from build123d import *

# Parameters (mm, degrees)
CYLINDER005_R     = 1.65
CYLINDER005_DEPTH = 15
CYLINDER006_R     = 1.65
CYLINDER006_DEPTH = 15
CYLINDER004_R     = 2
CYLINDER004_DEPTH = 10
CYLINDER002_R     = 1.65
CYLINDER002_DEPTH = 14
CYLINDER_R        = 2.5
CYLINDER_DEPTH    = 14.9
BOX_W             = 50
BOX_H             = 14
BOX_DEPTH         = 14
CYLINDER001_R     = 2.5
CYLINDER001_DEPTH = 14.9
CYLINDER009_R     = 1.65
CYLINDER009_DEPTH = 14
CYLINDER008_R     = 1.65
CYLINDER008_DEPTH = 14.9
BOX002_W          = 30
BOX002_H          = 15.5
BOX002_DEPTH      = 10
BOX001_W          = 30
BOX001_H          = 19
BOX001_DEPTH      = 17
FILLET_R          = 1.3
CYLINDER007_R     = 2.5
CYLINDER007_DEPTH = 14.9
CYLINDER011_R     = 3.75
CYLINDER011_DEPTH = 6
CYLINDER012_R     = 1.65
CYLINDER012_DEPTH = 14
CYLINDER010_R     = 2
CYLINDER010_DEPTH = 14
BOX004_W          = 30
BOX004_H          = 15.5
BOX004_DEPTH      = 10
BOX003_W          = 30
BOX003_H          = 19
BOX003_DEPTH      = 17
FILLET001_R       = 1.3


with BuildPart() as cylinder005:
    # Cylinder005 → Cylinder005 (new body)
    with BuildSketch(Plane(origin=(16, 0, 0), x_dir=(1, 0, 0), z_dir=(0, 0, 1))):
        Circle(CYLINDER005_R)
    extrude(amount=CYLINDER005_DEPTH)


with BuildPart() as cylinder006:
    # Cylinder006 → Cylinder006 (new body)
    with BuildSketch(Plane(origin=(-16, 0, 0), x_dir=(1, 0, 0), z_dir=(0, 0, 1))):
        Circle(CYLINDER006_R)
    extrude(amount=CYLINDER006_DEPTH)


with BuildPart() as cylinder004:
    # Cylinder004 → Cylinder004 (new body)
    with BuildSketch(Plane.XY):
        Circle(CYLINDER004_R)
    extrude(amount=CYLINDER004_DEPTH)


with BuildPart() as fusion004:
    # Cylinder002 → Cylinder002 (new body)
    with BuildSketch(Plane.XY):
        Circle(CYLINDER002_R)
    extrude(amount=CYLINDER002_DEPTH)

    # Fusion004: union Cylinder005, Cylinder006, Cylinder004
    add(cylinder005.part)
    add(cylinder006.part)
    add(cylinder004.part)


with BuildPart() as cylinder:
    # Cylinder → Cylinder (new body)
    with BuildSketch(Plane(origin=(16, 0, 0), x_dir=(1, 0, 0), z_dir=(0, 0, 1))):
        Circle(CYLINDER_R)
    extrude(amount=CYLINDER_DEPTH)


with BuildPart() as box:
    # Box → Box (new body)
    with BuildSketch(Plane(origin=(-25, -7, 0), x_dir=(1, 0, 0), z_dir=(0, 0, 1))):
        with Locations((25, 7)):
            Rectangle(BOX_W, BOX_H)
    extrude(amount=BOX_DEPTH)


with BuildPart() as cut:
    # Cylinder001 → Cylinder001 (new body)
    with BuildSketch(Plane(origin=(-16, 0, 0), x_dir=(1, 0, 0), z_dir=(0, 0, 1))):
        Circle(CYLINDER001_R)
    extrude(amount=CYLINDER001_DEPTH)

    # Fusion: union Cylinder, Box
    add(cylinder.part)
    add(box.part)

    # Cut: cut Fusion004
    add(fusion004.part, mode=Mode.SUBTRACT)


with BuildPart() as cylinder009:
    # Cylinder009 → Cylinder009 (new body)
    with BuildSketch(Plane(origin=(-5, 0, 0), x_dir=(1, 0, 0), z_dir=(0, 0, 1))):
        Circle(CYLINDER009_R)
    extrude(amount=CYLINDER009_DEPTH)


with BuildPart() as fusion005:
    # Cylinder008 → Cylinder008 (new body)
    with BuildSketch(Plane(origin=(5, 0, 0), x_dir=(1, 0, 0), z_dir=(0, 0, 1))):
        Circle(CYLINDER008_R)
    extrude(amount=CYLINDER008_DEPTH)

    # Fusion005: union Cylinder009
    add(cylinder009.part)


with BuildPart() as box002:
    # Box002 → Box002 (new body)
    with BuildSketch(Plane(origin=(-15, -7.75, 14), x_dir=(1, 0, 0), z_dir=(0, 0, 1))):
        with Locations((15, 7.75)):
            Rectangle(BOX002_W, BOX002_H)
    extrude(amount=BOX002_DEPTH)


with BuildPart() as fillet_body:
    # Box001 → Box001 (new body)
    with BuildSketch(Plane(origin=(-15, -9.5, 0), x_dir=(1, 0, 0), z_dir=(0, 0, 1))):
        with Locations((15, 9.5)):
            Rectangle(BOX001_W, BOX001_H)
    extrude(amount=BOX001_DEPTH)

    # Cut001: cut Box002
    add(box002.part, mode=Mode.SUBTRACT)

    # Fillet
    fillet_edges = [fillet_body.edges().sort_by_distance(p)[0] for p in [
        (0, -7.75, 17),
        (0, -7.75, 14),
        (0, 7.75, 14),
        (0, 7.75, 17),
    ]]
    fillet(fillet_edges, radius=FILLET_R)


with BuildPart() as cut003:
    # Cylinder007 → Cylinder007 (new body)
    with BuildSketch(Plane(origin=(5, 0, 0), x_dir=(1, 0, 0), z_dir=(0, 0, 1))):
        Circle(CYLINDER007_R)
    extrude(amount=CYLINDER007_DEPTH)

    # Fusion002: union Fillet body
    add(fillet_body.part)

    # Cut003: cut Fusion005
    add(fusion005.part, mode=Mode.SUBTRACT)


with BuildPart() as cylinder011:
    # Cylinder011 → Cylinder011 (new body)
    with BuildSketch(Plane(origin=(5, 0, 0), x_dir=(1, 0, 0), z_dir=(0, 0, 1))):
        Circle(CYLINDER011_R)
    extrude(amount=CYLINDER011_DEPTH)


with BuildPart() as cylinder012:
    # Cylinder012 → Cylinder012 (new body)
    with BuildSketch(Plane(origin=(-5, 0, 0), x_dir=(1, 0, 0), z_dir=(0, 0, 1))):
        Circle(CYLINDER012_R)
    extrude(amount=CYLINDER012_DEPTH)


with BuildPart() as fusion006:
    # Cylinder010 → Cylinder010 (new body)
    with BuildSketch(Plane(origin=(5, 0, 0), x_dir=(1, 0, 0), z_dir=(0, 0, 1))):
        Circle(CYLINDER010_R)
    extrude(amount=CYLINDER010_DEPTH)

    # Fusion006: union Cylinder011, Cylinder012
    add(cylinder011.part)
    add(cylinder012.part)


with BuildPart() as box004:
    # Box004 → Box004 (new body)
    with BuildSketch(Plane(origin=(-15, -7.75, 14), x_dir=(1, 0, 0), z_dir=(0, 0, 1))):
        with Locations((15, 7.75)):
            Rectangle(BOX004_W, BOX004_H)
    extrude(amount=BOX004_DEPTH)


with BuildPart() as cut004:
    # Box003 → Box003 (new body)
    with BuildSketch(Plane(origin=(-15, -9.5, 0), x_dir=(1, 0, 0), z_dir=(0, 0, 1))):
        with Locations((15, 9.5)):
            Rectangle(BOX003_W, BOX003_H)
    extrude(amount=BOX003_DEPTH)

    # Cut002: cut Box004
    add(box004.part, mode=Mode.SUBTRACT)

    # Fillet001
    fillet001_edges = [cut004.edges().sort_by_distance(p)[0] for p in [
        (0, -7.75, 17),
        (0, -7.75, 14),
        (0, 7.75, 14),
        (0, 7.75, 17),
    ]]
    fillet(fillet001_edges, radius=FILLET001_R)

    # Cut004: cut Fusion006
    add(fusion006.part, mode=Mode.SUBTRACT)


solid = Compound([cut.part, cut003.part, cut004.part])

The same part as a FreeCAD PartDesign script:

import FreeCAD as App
import Part
import Sketcher


def edges_at(feature, points):
    """Names of the edges that pass closest to the given points."""
    edges = feature.Shape.Edges
    near = lambda p: min(range(len(edges)), key=lambda i: edges[i].distToShape(Part.Vertex(*p))[0])
    return sorted({f"Edge{near(p) + 1}" for p in points})


def add_polygon(sketch, points):
    """Adds a closed chain of lines whose ends are joined by coincident constraints."""
    first, n = sketch.GeometryCount, len(points)
    for a, b in zip(points, points[1:] + points[:1]):
        sketch.addGeometry(Part.LineSegment(App.Vector(*a, 0), App.Vector(*b, 0)), False)
    for i in range(n):
        sketch.addConstraint(Sketcher.Constraint("Coincident", first + i, 2, first + (i + 1) % n, 1))

doc = App.newDocument("Part")
body = doc.addObject("PartDesign::Body", "Body")

sketch1 = body.newObject("Sketcher::SketchObject", "Sketch")
sketch1.AttachmentSupport = (doc.getObject("XY_Plane"), [""])
sketch1.MapMode = "FlatFace"
sketch1.addGeometry(Part.Circle(App.Vector(16, 0, 0), App.Vector(0, 0, 1), 1.6), False)
sketch1.addConstraint(Sketcher.Constraint("PointOnObject", 0, 3, -1))
sketch1.addConstraint(Sketcher.Constraint("Diameter", 0, 3.3))
sketch1.addConstraint(Sketcher.Constraint("DistanceX", -1, 1, 0, 3, 16.0))
pad1 = body.newObject("PartDesign::Pad", "Pad")
pad1.Profile = sketch1
pad1.Length = 15
body2 = doc.addObject("PartDesign::Body", "Body001")

sketch2 = body2.newObject("Sketcher::SketchObject", "Sketch001")
sketch2.AttachmentSupport = (doc.getObject("XY_Plane001"), [""])
sketch2.MapMode = "FlatFace"
sketch2.addGeometry(Part.Circle(App.Vector(-16, 0, 0), App.Vector(0, 0, 1), 1.6), False)
sketch2.addConstraint(Sketcher.Constraint("PointOnObject", 0, 3, -1))
sketch2.addConstraint(Sketcher.Constraint("Diameter", 0, 3.3))
sketch2.addConstraint(Sketcher.Constraint("DistanceX", 0, 3, -1, 1, 16.0))
pad2 = body2.newObject("PartDesign::Pad", "Pad001")
pad2.Profile = sketch2
pad2.Length = 15
body3 = doc.addObject("PartDesign::Body", "Body002")

sketch3 = body3.newObject("Sketcher::SketchObject", "Sketch002")
sketch3.AttachmentSupport = (doc.getObject("XY_Plane002"), [""])
sketch3.MapMode = "FlatFace"
sketch3.addGeometry(Part.Circle(App.Vector(0, 0, 0), App.Vector(0, 0, 1), 2), False)
sketch3.addConstraint(Sketcher.Constraint("Coincident", 0, 3, -1, 1))
sketch3.addConstraint(Sketcher.Constraint("Diameter", 0, 4.0))
pad3 = body3.newObject("PartDesign::Pad", "Pad002")
pad3.Profile = sketch3
pad3.Length = 10
body4 = doc.addObject("PartDesign::Body", "Body003")
body4.AllowCompound = True

sketch4 = body4.newObject("Sketcher::SketchObject", "Sketch003")
sketch4.AttachmentSupport = (doc.getObject("XY_Plane003"), [""])
sketch4.MapMode = "FlatFace"
sketch4.addGeometry(Part.Circle(App.Vector(0, 0, 0), App.Vector(0, 0, 1), 1.6), False)
sketch4.addConstraint(Sketcher.Constraint("Coincident", 0, 3, -1, 1))
sketch4.addConstraint(Sketcher.Constraint("Diameter", 0, 3.3))
pad4 = body4.newObject("PartDesign::Pad", "Pad003")
pad4.Profile = sketch4
pad4.Length = 14
doc.recompute()

boolean = body4.newObject("PartDesign::Boolean", "Boolean")
boolean.Type = "Fuse"
boolean.addObjects([body])
doc.recompute()

boolean2 = body4.newObject("PartDesign::Boolean", "Boolean001")
boolean2.Type = "Fuse"
boolean2.addObjects([body2])
doc.recompute()

boolean3 = body4.newObject("PartDesign::Boolean", "Boolean002")
boolean3.Type = "Fuse"
boolean3.addObjects([body3])
body5 = doc.addObject("PartDesign::Body", "Body004")

sketch5 = body5.newObject("Sketcher::SketchObject", "Sketch004")
sketch5.AttachmentSupport = (doc.getObject("XY_Plane004"), [""])
sketch5.MapMode = "FlatFace"
sketch5.addGeometry(Part.Circle(App.Vector(16, 0, 0), App.Vector(0, 0, 1), 2.5), False)
sketch5.addConstraint(Sketcher.Constraint("PointOnObject", 0, 3, -1))
sketch5.addConstraint(Sketcher.Constraint("Diameter", 0, 5.0))
sketch5.addConstraint(Sketcher.Constraint("DistanceX", -1, 1, 0, 3, 16.0))
pad5 = body5.newObject("PartDesign::Pad", "Pad004")
pad5.Profile = sketch5
pad5.Length = 14.9
body6 = doc.addObject("PartDesign::Body", "Body005")

sketch6 = body6.newObject("Sketcher::SketchObject", "Sketch005")
sketch6.AttachmentSupport = (doc.getObject("XY_Plane005"), [""])
sketch6.MapMode = "FlatFace"
add_polygon(sketch6, [(-25, 7), (-25, -7), (25, -7), (25, 7)])
sketch6.addConstraint(Sketcher.Constraint("Vertical", 0))
sketch6.addConstraint(Sketcher.Constraint("Horizontal", 1))
sketch6.addConstraint(Sketcher.Constraint("Vertical", 2))
sketch6.addConstraint(Sketcher.Constraint("Horizontal", 3))
sketch6.addConstraint(Sketcher.Constraint("Symmetric", 0, 2, 2, 2, -1, 1))
sketch6.addConstraint(Sketcher.Constraint("DistanceX", 1, 1, 1, 2, 50.0))
sketch6.addConstraint(Sketcher.Constraint("DistanceY", 0, 2, 0, 1, 14.0))
pad6 = body6.newObject("PartDesign::Pad", "Pad005")
pad6.Profile = sketch6
pad6.Length = 14
body7 = doc.addObject("PartDesign::Body", "Body006")
body7.AllowCompound = True

sketch7 = body7.newObject("Sketcher::SketchObject", "Sketch006")
sketch7.AttachmentSupport = (doc.getObject("XY_Plane006"), [""])
sketch7.MapMode = "FlatFace"
sketch7.addGeometry(Part.Circle(App.Vector(-16, 0, 0), App.Vector(0, 0, 1), 2.5), False)
sketch7.addConstraint(Sketcher.Constraint("PointOnObject", 0, 3, -1))
sketch7.addConstraint(Sketcher.Constraint("Diameter", 0, 5.0))
sketch7.addConstraint(Sketcher.Constraint("DistanceX", 0, 3, -1, 1, 16.0))
pad7 = body7.newObject("PartDesign::Pad", "Pad006")
pad7.Profile = sketch7
pad7.Length = 14.9
doc.recompute()

boolean4 = body7.newObject("PartDesign::Boolean", "Boolean003")
boolean4.Type = "Fuse"
boolean4.addObjects([body5])
doc.recompute()

boolean5 = body7.newObject("PartDesign::Boolean", "Boolean004")
boolean5.Type = "Fuse"
boolean5.addObjects([body6])
doc.recompute()

boolean6 = body7.newObject("PartDesign::Boolean", "Boolean005")
boolean6.Type = "Cut"
boolean6.addObjects([body4])
body8 = doc.addObject("PartDesign::Body", "Body007")

sketch8 = body8.newObject("Sketcher::SketchObject", "Sketch007")
sketch8.AttachmentSupport = (doc.getObject("XY_Plane007"), [""])
sketch8.MapMode = "FlatFace"
sketch8.addGeometry(Part.Circle(App.Vector(-5, 0, 0), App.Vector(0, 0, 1), 1.6), False)
sketch8.addConstraint(Sketcher.Constraint("PointOnObject", 0, 3, -1))
sketch8.addConstraint(Sketcher.Constraint("Diameter", 0, 3.3))
sketch8.addConstraint(Sketcher.Constraint("DistanceX", 0, 3, -1, 1, 5.0))
pad8 = body8.newObject("PartDesign::Pad", "Pad007")
pad8.Profile = sketch8
pad8.Length = 14
body9 = doc.addObject("PartDesign::Body", "Body008")
body9.AllowCompound = True

sketch9 = body9.newObject("Sketcher::SketchObject", "Sketch008")
sketch9.AttachmentSupport = (doc.getObject("XY_Plane008"), [""])
sketch9.MapMode = "FlatFace"
sketch9.addGeometry(Part.Circle(App.Vector(5, 0, 0), App.Vector(0, 0, 1), 1.6), False)
sketch9.addConstraint(Sketcher.Constraint("PointOnObject", 0, 3, -1))
sketch9.addConstraint(Sketcher.Constraint("Diameter", 0, 3.3))
sketch9.addConstraint(Sketcher.Constraint("DistanceX", -1, 1, 0, 3, 5.0))
pad9 = body9.newObject("PartDesign::Pad", "Pad008")
pad9.Profile = sketch9
pad9.Length = 14.9
doc.recompute()

boolean7 = body9.newObject("PartDesign::Boolean", "Boolean006")
boolean7.Type = "Fuse"
boolean7.addObjects([body8])
body10 = doc.addObject("PartDesign::Body", "Body009")

sketch10 = body10.newObject("Sketcher::SketchObject", "Sketch009")
sketch10.AttachmentSupport = (doc.getObject("XY_Plane009"), [""])
sketch10.MapMode = "FlatFace"
sketch10.AttachmentOffset = App.Placement(App.Vector(0, 0, 14), App.Rotation())
add_polygon(sketch10, [(-15, 8), (-15, -8), (15, -8), (15, 8)])
sketch10.addConstraint(Sketcher.Constraint("Vertical", 0))
sketch10.addConstraint(Sketcher.Constraint("Horizontal", 1))
sketch10.addConstraint(Sketcher.Constraint("Vertical", 2))
sketch10.addConstraint(Sketcher.Constraint("Horizontal", 3))
sketch10.addConstraint(Sketcher.Constraint("Symmetric", 0, 2, 2, 2, -1, 1))
sketch10.addConstraint(Sketcher.Constraint("DistanceX", 1, 1, 1, 2, 30.0))
sketch10.addConstraint(Sketcher.Constraint("DistanceY", 0, 2, 0, 1, 15.5))
pad10 = body10.newObject("PartDesign::Pad", "Pad009")
pad10.Profile = sketch10
pad10.Length = 10
body11 = doc.addObject("PartDesign::Body", "Body010")

sketch11 = body11.newObject("Sketcher::SketchObject", "Sketch010")
sketch11.AttachmentSupport = (doc.getObject("XY_Plane010"), [""])
sketch11.MapMode = "FlatFace"
add_polygon(sketch11, [(-15, 10), (-15, -10), (15, -10), (15, 10)])
sketch11.addConstraint(Sketcher.Constraint("Vertical", 0))
sketch11.addConstraint(Sketcher.Constraint("Horizontal", 1))
sketch11.addConstraint(Sketcher.Constraint("Vertical", 2))
sketch11.addConstraint(Sketcher.Constraint("Horizontal", 3))
sketch11.addConstraint(Sketcher.Constraint("Symmetric", 0, 2, 2, 2, -1, 1))
sketch11.addConstraint(Sketcher.Constraint("DistanceX", 1, 1, 1, 2, 30.0))
sketch11.addConstraint(Sketcher.Constraint("DistanceY", 0, 2, 0, 1, 19.0))
pad11 = body11.newObject("PartDesign::Pad", "Pad010")
pad11.Profile = sketch11
pad11.Length = 17
doc.recompute()

boolean8 = body11.newObject("PartDesign::Boolean", "Boolean007")
boolean8.Type = "Cut"
boolean8.addObjects([body10])
doc.recompute()

fillet = body11.newObject("PartDesign::Fillet", "Fillet")
fillet.Base = (boolean8, edges_at(boolean8, [
    (0, -7.75, 17),
    (0, -7.75, 14),
    (0, 7.75, 14),
    (0, 7.75, 17),
]))
fillet.Radius = 1.3
body12 = doc.addObject("PartDesign::Body", "Body011")

sketch12 = body12.newObject("Sketcher::SketchObject", "Sketch011")
sketch12.AttachmentSupport = (doc.getObject("XY_Plane011"), [""])
sketch12.MapMode = "FlatFace"
sketch12.addGeometry(Part.Circle(App.Vector(5, 0, 0), App.Vector(0, 0, 1), 2.5), False)
sketch12.addConstraint(Sketcher.Constraint("PointOnObject", 0, 3, -1))
sketch12.addConstraint(Sketcher.Constraint("Diameter", 0, 5.0))
sketch12.addConstraint(Sketcher.Constraint("DistanceX", -1, 1, 0, 3, 5.0))
pad12 = body12.newObject("PartDesign::Pad", "Pad011")
pad12.Profile = sketch12
pad12.Length = 14.9
doc.recompute()

boolean9 = body12.newObject("PartDesign::Boolean", "Boolean008")
boolean9.Type = "Fuse"
boolean9.addObjects([body11])
doc.recompute()

boolean10 = body12.newObject("PartDesign::Boolean", "Boolean009")
boolean10.Type = "Cut"
boolean10.addObjects([body9])
body13 = doc.addObject("PartDesign::Body", "Body012")

sketch13 = body13.newObject("Sketcher::SketchObject", "Sketch012")
sketch13.AttachmentSupport = (doc.getObject("XY_Plane012"), [""])
sketch13.MapMode = "FlatFace"
sketch13.addGeometry(Part.Circle(App.Vector(5, 0, 0), App.Vector(0, 0, 1), 3.8), False)
sketch13.addConstraint(Sketcher.Constraint("PointOnObject", 0, 3, -1))
sketch13.addConstraint(Sketcher.Constraint("Diameter", 0, 7.5))
sketch13.addConstraint(Sketcher.Constraint("DistanceX", -1, 1, 0, 3, 5.0))
pad13 = body13.newObject("PartDesign::Pad", "Pad012")
pad13.Profile = sketch13
pad13.Length = 6
body14 = doc.addObject("PartDesign::Body", "Body013")

sketch14 = body14.newObject("Sketcher::SketchObject", "Sketch013")
sketch14.AttachmentSupport = (doc.getObject("XY_Plane013"), [""])
sketch14.MapMode = "FlatFace"
sketch14.addGeometry(Part.Circle(App.Vector(-5, 0, 0), App.Vector(0, 0, 1), 1.6), False)
sketch14.addConstraint(Sketcher.Constraint("PointOnObject", 0, 3, -1))
sketch14.addConstraint(Sketcher.Constraint("Diameter", 0, 3.3))
sketch14.addConstraint(Sketcher.Constraint("DistanceX", 0, 3, -1, 1, 5.0))
pad14 = body14.newObject("PartDesign::Pad", "Pad013")
pad14.Profile = sketch14
pad14.Length = 14
body15 = doc.addObject("PartDesign::Body", "Body014")
body15.AllowCompound = True

sketch15 = body15.newObject("Sketcher::SketchObject", "Sketch014")
sketch15.AttachmentSupport = (doc.getObject("XY_Plane014"), [""])
sketch15.MapMode = "FlatFace"
sketch15.addGeometry(Part.Circle(App.Vector(5, 0, 0), App.Vector(0, 0, 1), 2), False)
sketch15.addConstraint(Sketcher.Constraint("PointOnObject", 0, 3, -1))
sketch15.addConstraint(Sketcher.Constraint("Diameter", 0, 4.0))
sketch15.addConstraint(Sketcher.Constraint("DistanceX", -1, 1, 0, 3, 5.0))
pad15 = body15.newObject("PartDesign::Pad", "Pad014")
pad15.Profile = sketch15
pad15.Length = 14
doc.recompute()

boolean11 = body15.newObject("PartDesign::Boolean", "Boolean010")
boolean11.Type = "Fuse"
boolean11.addObjects([body13])
doc.recompute()

boolean12 = body15.newObject("PartDesign::Boolean", "Boolean011")
boolean12.Type = "Fuse"
boolean12.addObjects([body14])
body16 = doc.addObject("PartDesign::Body", "Body015")

sketch16 = body16.newObject("Sketcher::SketchObject", "Sketch015")
sketch16.AttachmentSupport = (doc.getObject("XY_Plane015"), [""])
sketch16.MapMode = "FlatFace"
sketch16.AttachmentOffset = App.Placement(App.Vector(0, 0, 14), App.Rotation())
add_polygon(sketch16, [(-15, 8), (-15, -8), (15, -8), (15, 8)])
sketch16.addConstraint(Sketcher.Constraint("Vertical", 0))
sketch16.addConstraint(Sketcher.Constraint("Horizontal", 1))
sketch16.addConstraint(Sketcher.Constraint("Vertical", 2))
sketch16.addConstraint(Sketcher.Constraint("Horizontal", 3))
sketch16.addConstraint(Sketcher.Constraint("Symmetric", 0, 2, 2, 2, -1, 1))
sketch16.addConstraint(Sketcher.Constraint("DistanceX", 1, 1, 1, 2, 30.0))
sketch16.addConstraint(Sketcher.Constraint("DistanceY", 0, 2, 0, 1, 15.5))
pad16 = body16.newObject("PartDesign::Pad", "Pad015")
pad16.Profile = sketch16
pad16.Length = 10
body17 = doc.addObject("PartDesign::Body", "Body016")

sketch17 = body17.newObject("Sketcher::SketchObject", "Sketch016")
sketch17.AttachmentSupport = (doc.getObject("XY_Plane016"), [""])
sketch17.MapMode = "FlatFace"
add_polygon(sketch17, [(-15, 10), (-15, -10), (15, -10), (15, 10)])
sketch17.addConstraint(Sketcher.Constraint("Vertical", 0))
sketch17.addConstraint(Sketcher.Constraint("Horizontal", 1))
sketch17.addConstraint(Sketcher.Constraint("Vertical", 2))
sketch17.addConstraint(Sketcher.Constraint("Horizontal", 3))
sketch17.addConstraint(Sketcher.Constraint("Symmetric", 0, 2, 2, 2, -1, 1))
sketch17.addConstraint(Sketcher.Constraint("DistanceX", 1, 1, 1, 2, 30.0))
sketch17.addConstraint(Sketcher.Constraint("DistanceY", 0, 2, 0, 1, 19.0))
pad17 = body17.newObject("PartDesign::Pad", "Pad016")
pad17.Profile = sketch17
pad17.Length = 17
doc.recompute()

boolean13 = body17.newObject("PartDesign::Boolean", "Boolean012")
boolean13.Type = "Cut"
boolean13.addObjects([body16])
doc.recompute()

fillet2 = body17.newObject("PartDesign::Fillet", "Fillet001")
fillet2.Base = (boolean13, edges_at(boolean13, [
    (0, -7.75, 17),
    (0, -7.75, 14),
    (0, 7.75, 14),
    (0, 7.75, 17),
]))
fillet2.Radius = 1.3
doc.recompute()

boolean14 = body17.newObject("PartDesign::Boolean", "Boolean013")
boolean14.Type = "Cut"
boolean14.addObjects([body15])

doc.recompute()
